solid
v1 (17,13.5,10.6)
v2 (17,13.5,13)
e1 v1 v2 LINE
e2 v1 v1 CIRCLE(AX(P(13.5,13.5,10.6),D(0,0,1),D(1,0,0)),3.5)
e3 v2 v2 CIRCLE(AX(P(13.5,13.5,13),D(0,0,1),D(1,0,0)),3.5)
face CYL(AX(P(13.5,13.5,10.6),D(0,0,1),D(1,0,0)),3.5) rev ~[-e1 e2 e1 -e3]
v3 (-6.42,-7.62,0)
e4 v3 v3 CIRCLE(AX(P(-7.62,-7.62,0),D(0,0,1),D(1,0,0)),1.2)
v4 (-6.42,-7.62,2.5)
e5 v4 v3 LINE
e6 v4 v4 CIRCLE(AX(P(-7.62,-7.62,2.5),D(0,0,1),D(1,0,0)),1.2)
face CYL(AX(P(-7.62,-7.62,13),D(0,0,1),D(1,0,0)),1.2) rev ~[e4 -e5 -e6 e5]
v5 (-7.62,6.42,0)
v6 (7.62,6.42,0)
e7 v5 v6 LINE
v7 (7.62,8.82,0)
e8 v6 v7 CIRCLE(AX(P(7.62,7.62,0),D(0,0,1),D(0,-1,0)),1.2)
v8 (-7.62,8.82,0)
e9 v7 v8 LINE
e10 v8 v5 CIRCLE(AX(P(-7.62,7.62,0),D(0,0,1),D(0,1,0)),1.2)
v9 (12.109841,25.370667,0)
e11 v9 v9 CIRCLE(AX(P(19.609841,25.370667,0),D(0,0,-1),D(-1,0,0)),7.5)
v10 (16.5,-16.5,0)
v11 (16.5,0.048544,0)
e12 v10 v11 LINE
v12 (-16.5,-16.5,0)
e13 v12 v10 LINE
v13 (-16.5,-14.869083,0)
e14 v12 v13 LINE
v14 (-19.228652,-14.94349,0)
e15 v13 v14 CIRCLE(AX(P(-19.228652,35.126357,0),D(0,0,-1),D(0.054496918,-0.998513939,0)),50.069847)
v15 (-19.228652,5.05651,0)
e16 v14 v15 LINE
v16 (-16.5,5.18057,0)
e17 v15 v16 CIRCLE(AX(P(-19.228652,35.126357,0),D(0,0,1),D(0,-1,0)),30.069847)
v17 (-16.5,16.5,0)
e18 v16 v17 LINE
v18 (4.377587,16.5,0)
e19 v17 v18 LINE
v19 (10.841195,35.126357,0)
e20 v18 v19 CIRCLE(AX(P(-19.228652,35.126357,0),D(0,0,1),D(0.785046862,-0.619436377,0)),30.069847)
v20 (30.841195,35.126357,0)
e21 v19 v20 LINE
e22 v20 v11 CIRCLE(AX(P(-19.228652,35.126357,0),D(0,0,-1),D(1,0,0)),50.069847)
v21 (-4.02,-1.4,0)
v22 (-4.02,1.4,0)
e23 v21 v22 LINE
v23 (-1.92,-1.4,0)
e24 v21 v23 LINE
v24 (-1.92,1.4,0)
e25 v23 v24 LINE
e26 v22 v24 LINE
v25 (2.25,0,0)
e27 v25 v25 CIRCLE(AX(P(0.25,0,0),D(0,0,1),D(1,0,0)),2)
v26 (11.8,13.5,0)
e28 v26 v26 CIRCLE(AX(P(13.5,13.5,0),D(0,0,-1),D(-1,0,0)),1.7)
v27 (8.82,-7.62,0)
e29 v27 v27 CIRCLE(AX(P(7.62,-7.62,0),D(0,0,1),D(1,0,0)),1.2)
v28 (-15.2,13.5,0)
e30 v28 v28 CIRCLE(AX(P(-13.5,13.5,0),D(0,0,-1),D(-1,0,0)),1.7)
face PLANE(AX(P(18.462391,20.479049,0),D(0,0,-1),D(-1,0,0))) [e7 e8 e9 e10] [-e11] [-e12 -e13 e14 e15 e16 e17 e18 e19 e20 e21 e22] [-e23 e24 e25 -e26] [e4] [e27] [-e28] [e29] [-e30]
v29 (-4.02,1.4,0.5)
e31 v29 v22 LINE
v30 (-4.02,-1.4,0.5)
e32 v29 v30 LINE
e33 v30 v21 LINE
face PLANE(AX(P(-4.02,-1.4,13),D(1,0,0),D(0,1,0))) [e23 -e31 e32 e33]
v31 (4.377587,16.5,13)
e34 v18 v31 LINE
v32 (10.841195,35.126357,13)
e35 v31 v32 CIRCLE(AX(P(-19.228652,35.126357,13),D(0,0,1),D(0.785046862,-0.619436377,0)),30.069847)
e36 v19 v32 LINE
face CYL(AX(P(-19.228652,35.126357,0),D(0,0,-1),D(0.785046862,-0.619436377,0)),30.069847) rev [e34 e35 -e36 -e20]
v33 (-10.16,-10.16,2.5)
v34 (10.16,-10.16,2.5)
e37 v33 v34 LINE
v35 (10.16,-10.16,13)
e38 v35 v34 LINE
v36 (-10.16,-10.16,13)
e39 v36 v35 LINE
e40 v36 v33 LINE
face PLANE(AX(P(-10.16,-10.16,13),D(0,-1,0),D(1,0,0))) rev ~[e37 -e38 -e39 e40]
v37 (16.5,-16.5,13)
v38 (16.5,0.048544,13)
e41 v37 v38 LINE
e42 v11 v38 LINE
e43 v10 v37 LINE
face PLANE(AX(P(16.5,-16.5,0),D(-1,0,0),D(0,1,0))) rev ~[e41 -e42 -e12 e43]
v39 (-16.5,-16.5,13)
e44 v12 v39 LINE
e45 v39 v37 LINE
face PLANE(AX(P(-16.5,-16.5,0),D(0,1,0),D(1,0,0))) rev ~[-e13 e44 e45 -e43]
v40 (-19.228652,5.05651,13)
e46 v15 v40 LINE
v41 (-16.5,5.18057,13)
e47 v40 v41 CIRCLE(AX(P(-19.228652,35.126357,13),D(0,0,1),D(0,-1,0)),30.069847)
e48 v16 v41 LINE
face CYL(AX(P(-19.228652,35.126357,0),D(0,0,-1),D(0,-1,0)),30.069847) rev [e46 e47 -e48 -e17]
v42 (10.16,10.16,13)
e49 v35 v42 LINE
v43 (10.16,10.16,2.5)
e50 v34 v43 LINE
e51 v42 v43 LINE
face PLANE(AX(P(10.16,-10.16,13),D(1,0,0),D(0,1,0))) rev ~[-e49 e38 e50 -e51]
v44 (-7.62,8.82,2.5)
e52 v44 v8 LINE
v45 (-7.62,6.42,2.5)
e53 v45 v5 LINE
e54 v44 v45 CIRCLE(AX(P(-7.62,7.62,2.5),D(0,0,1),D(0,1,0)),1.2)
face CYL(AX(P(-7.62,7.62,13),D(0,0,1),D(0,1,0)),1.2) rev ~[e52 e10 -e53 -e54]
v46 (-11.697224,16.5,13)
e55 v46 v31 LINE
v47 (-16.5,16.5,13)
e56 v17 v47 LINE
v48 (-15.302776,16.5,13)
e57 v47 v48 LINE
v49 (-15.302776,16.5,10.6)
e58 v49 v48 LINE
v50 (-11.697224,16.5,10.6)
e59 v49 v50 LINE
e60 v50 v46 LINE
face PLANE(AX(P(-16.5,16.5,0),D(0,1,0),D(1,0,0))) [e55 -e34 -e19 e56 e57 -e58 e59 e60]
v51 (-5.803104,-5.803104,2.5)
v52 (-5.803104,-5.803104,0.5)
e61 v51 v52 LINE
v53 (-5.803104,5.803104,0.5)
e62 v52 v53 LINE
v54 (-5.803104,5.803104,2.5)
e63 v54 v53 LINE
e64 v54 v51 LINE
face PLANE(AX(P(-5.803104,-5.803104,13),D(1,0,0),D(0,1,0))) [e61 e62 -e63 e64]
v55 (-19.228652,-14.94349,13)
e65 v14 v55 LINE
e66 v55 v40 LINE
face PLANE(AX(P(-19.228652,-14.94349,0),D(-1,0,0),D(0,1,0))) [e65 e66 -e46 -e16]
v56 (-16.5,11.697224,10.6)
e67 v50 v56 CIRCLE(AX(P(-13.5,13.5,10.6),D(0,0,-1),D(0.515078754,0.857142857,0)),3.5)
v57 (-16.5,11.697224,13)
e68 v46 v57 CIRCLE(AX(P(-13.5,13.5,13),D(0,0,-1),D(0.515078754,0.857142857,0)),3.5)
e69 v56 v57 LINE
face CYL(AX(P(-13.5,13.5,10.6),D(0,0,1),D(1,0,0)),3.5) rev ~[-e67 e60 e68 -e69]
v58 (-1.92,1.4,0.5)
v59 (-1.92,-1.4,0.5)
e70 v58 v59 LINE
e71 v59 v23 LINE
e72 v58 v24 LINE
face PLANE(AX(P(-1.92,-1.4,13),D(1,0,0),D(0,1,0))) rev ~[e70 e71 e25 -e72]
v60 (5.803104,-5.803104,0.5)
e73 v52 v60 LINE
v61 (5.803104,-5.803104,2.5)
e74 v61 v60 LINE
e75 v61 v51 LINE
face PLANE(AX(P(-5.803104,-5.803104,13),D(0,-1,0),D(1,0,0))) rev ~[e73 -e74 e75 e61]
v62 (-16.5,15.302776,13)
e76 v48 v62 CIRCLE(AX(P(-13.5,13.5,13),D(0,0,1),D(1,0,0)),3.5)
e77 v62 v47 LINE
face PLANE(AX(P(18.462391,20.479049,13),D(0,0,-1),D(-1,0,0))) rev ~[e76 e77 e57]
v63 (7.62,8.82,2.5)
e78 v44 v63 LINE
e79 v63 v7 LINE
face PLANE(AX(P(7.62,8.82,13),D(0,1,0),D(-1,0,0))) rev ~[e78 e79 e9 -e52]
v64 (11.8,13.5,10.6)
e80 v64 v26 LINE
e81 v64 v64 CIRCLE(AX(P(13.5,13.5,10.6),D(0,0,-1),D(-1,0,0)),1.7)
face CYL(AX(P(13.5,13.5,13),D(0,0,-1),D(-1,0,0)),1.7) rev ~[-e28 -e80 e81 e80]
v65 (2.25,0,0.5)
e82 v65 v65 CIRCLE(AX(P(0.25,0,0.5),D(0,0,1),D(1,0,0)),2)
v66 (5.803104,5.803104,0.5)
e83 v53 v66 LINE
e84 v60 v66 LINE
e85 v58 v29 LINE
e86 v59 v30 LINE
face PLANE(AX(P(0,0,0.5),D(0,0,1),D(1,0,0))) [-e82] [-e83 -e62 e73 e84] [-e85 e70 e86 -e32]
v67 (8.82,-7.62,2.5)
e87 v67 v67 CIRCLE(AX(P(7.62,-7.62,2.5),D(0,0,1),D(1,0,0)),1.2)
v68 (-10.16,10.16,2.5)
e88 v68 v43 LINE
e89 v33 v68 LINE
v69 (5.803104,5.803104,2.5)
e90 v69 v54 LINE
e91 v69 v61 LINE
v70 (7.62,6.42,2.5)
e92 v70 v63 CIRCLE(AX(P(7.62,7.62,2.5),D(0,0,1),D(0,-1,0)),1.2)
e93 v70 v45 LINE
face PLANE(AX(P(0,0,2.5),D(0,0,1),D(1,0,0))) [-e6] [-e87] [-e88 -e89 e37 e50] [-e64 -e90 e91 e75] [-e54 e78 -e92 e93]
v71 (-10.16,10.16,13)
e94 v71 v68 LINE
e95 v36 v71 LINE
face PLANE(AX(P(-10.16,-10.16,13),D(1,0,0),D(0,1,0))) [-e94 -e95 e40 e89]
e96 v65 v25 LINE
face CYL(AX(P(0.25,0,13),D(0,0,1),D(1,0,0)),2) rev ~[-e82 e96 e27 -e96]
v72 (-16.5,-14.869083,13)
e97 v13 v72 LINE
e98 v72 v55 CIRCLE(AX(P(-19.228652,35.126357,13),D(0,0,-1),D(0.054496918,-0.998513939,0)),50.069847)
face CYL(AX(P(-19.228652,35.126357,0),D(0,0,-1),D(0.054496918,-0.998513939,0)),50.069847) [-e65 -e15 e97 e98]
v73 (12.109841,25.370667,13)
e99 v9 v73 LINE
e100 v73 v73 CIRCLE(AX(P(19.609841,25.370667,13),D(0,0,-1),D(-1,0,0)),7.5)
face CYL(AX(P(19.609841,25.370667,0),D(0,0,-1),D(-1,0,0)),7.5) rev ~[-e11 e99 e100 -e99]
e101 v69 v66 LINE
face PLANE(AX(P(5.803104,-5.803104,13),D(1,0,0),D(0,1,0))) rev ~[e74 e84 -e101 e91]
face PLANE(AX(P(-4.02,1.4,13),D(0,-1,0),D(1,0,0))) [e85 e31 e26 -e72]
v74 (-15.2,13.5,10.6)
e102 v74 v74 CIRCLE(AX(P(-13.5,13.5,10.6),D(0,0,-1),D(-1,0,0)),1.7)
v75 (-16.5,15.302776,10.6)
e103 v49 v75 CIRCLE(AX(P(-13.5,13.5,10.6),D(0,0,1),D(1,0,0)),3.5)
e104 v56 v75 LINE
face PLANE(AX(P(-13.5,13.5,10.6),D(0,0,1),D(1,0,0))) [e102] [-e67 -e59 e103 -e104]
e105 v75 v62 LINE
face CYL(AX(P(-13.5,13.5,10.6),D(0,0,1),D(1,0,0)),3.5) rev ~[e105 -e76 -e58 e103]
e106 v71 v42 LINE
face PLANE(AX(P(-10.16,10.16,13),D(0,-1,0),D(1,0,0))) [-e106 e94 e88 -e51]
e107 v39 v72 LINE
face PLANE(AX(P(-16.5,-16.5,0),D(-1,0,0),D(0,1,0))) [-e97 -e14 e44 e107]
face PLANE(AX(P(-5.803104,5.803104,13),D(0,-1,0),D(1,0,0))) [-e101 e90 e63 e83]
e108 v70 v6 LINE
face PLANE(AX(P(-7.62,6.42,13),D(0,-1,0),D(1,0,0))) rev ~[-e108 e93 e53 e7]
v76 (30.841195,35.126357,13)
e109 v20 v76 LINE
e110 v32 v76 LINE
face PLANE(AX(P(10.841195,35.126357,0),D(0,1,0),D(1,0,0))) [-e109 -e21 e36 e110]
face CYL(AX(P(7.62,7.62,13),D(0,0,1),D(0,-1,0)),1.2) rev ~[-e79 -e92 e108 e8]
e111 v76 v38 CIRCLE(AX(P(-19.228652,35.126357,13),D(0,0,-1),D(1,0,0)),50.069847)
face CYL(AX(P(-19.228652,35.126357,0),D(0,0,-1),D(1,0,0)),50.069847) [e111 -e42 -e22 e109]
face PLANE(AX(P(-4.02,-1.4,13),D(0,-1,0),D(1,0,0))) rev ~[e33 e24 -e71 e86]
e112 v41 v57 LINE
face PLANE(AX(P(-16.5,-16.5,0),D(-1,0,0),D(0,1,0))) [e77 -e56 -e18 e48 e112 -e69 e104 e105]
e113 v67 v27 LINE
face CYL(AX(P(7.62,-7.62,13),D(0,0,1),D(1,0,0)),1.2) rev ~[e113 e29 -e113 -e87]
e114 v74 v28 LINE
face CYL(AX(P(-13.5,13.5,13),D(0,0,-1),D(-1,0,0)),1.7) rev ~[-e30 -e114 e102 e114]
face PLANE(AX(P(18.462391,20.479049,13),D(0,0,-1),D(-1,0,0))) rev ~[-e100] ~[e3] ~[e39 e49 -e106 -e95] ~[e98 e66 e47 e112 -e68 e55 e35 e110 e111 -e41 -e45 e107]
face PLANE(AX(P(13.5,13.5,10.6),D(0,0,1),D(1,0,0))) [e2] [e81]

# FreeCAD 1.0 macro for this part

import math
import FreeCAD as App
import Part
import Sketcher
from FreeCAD import Vector

doc = App.newDocument("Part")
body = doc.addObject("PartDesign::Body", "Body")

# Sketch on XY plane
sketch1 = doc.addObject("Sketcher::SketchObject", "Sketch")
body.addObject(sketch1)
sketch1.AttachmentSupport = (doc.XY_Plane, [""])
sketch1.MapMode = "FlatFace"
sketch1.addGeometry([
    Part.LineSegment(Vector(-16, 16, 0), Vector(-16, -16, 0)),
    Part.LineSegment(Vector(-16, -16, 0), Vector(16, -16, 0)),
    Part.LineSegment(Vector(16, -16, 0), Vector(16, 16, 0)),
    Part.LineSegment(Vector(16, 16, 0), Vector(-16, 16, 0)),
], False)
sketch1.addConstraint([
    Sketcher.Constraint("Coincident", 0, 2, 1, 1),
    Sketcher.Constraint("Coincident", 1, 2, 2, 1),
    Sketcher.Constraint("Coincident", 2, 2, 3, 1),
    Sketcher.Constraint("Coincident", 3, 2, 0, 1),
    Sketcher.Constraint("Vertical", 0),
    Sketcher.Constraint("Horizontal", 1),
    Sketcher.Constraint("Vertical", 2),
    Sketcher.Constraint("Horizontal", 3),
    Sketcher.Constraint("Symmetric", 0, 2, 2, 2, -1, 1),
    Sketcher.Constraint("Equal", 3, 0),
    Sketcher.Constraint("DistanceX", 1, 1, 1, 2, 33.0),
])
pad1 = doc.addObject("PartDesign::Pad", "Pad")
body.addObject(pad1)
pad1.Profile = sketch1
pad1.Length = 13

# Sketch on XY plane
sketch2 = doc.addObject("Sketcher::SketchObject", "Sketch001")
body.addObject(sketch2)
sketch2.AttachmentSupport = (doc.XY_Plane, [""])
sketch2.MapMode = "FlatFace"
sketch2.AttachmentOffset = App.Placement(Vector(0, 0, 13), App.Rotation())
sketch2.addGeometry([
    Part.Circle(Vector(0.2, 0, 0), Vector(0, 0, 1), 2),  # 0
    Part.LineSegment(Vector(-4, 1.4, 0), Vector(-4, -1.4, 0)),  # 1
    Part.LineSegment(Vector(-4, -1.4, 0), Vector(-1.9, -1.4, 0)),  # 2
    Part.LineSegment(Vector(-1.9, -1.4, 0), Vector(-1.9, 1.4, 0)),  # 3
    Part.LineSegment(Vector(-1.9, 1.4, 0), Vector(-4, 1.4, 0)),  # 4
], False)
sketch2.addConstraint([
    Sketcher.Constraint("Coincident", 1, 2, 2, 1),
    Sketcher.Constraint("Coincident", 2, 2, 3, 1),
    Sketcher.Constraint("Coincident", 3, 2, 4, 1),
    Sketcher.Constraint("Coincident", 4, 2, 1, 1),
    Sketcher.Constraint("Vertical", 1),
    Sketcher.Constraint("Horizontal", 2),
    Sketcher.Constraint("Vertical", 3),
    Sketcher.Constraint("Horizontal", 4),
    Sketcher.Constraint("PointOnObject", 0, 3, -1),
    Sketcher.Constraint("Diameter", 0, 4.0),
    Sketcher.Constraint("DistanceX", 2, 1, 2, 2, 2.1),
    Sketcher.Constraint("DistanceY", 1, 2, 1, 1, 2.8),
    Sketcher.Constraint("DistanceY", 1, 2, -1, 1, 1.4),
    Sketcher.Constraint("DistanceX", -1, 1, 0, 3, 0.25),
    Sketcher.Constraint("DistanceX", 1, 2, -1, 1, 4.02),
])
pocket1 = doc.addObject("PartDesign::Pocket", "Pocket")
body.addObject(pocket1)
pocket1.Profile = sketch2
pocket1.Type = "ThroughAll"

# Sketch on XY plane
sketch3 = doc.addObject("Sketcher::SketchObject", "Sketch002")
body.addObject(sketch3)
sketch3.AttachmentSupport = (doc.XY_Plane, [""])
sketch3.MapMode = "FlatFace"
sketch3.AttachmentOffset = App.Placement(Vector(0, 0, 13), App.Rotation())
sketch3.addGeometry([
    Part.LineSegment(Vector(-5.8, 5.8, 0), Vector(-5.8, -5.8, 0)),  # 0
    Part.LineSegment(Vector(-5.8, -5.8, 0), Vector(5.8, -5.8, 0)),  # 1
    Part.LineSegment(Vector(5.8, -5.8, 0), Vector(5.8, 5.8, 0)),  # 2
    Part.LineSegment(Vector(5.8, 5.8, 0), Vector(-5.8, 5.8, 0)),  # 3
    Part.Circle(Vector(0.2, 0, 0), Vector(0, 0, 1), 2),  # 4
], False)
sketch3.addConstraint([
    Sketcher.Constraint("Coincident", 0, 2, 1, 1),
    Sketcher.Constraint("Coincident", 1, 2, 2, 1),
    Sketcher.Constraint("Coincident", 2, 2, 3, 1),
    Sketcher.Constraint("Coincident", 3, 2, 0, 1),
    Sketcher.Constraint("Vertical", 0),
    Sketcher.Constraint("Horizontal", 1),
    Sketcher.Constraint("Vertical", 2),
    Sketcher.Constraint("Horizontal", 3),
    Sketcher.Constraint("Symmetric", 0, 2, 2, 2, -1, 1),
    Sketcher.Constraint("PointOnObject", 4, 3, -1),
    Sketcher.Constraint("Equal", 3, 0),
    Sketcher.Constraint("Diameter", 4, 4.0),
    Sketcher.Constraint("DistanceX", -1, 1, 4, 3, 0.25),
    Sketcher.Constraint("DistanceX", 1, 1, 1, 2, 11.606209),
])
pocket2 = doc.addObject("PartDesign::Pocket", "Pocket001")
body.addObject(pocket2)
pocket2.Profile = sketch3
pocket2.Length = 12.5

# Sketch on XY plane
sketch4 = doc.addObject("Sketcher::SketchObject", "Sketch003")
body.addObject(sketch4)
sketch4.AttachmentSupport = (doc.XY_Plane, [""])
sketch4.MapMode = "FlatFace"
sketch4.AttachmentOffset = App.Placement(Vector(0, 0, 13), App.Rotation())
sketch4.addGeometry([
    Part.LineSegment(Vector(7.6, 8.8, 0), Vector(-7.6, 8.8, 0)),  # 0
    Part.ArcOfCircle(Part.Circle(Vector(-7.6, 7.6, 0), Vector(0, 0, 1), 1.2), math.radians(90), math.radians(270)),  # 1
    Part.LineSegment(Vector(-7.6, 6.4, 0), Vector(7.6, 6.4, 0)),  # 2
    Part.ArcOfCircle(Part.Circle(Vector(7.6, 7.6, 0), Vector(0, 0, 1), 1.2), math.radians(-90), math.radians(90)),  # 3
    Part.Circle(Vector(7.6, -7.6, 0), Vector(0, 0, 1), 1.2),  # 4
    Part.Circle(Vector(-7.6, -7.6, 0), Vector(0, 0, 1), 1.2),  # 5
], False)
sketch4.addConstraint([
    Sketcher.Constraint("Tangent", 0, 2, 1, 1),
    Sketcher.Constraint("Tangent", 1, 2, 2, 1),
    Sketcher.Constraint("Tangent", 2, 2, 3, 1),
    Sketcher.Constraint("Tangent", 3, 2, 0, 1),
    Sketcher.Constraint("Horizontal", 0),
    Sketcher.Constraint("Horizontal", 2),
    Sketcher.Constraint("Equal", 3, 4),
    Sketcher.Constraint("Equal", 4, 5),
    Sketcher.Constraint("Symmetric", 1, 3, 4, 3, -1, 1),
    Sketcher.Constraint("Symmetric", 3, 3, 5, 3, -1, 1),
    Sketcher.Constraint("Vertical", 3, 3, 4, 3),
    Sketcher.Constraint("Diameter", 4, 2.4),
    Sketcher.Constraint("DistanceX", 0, 2, 0, 1, 15.24),
    Sketcher.Constraint("DistanceY", -1, 1, 1, 3, 7.62),
])
pocket3 = doc.addObject("PartDesign::Pocket", "Pocket002")
body.addObject(pocket3)
pocket3.Profile = sketch4
pocket3.Type = "ThroughAll"

# Sketch on XY plane
sketch5 = doc.addObject("Sketcher::SketchObject", "Sketch004")
body.addObject(sketch5)
sketch5.AttachmentSupport = (doc.XY_Plane, [""])
sketch5.MapMode = "FlatFace"
sketch5.AttachmentOffset = App.Placement(Vector(0, 0, 13), App.Rotation())
sketch5.addGeometry([
    Part.LineSegment(Vector(-10, 10, 0), Vector(-10, -10, 0)),
    Part.LineSegment(Vector(-10, -10, 0), Vector(10, -10, 0)),
    Part.LineSegment(Vector(10, -10, 0), Vector(10, 10, 0)),
    Part.LineSegment(Vector(10, 10, 0), Vector(-10, 10, 0)),
], False)
sketch5.addConstraint([
    Sketcher.Constraint("Coincident", 0, 2, 1, 1),
    Sketcher.Constraint("Coincident", 1, 2, 2, 1),
    Sketcher.Constraint("Coincident", 2, 2, 3, 1),
    Sketcher.Constraint("Coincident", 3, 2, 0, 1),
    Sketcher.Constraint("Vertical", 0),
    Sketcher.Constraint("Horizontal", 1),
    Sketcher.Constraint("Vertical", 2),
    Sketcher.Constraint("Horizontal", 3),
    Sketcher.Constraint("Symmetric", 0, 2, 2, 2, -1, 1),
    Sketcher.Constraint("Equal", 3, 0),
    Sketcher.Constraint("DistanceX", 1, 1, 1, 2, 20.32),
])
pocket4 = doc.addObject("PartDesign::Pocket", "Pocket003")
body.addObject(pocket4)
pocket4.Profile = sketch5
pocket4.Length = 10.5

# Sketch on XY plane
sketch6 = doc.addObject("Sketcher::SketchObject", "Sketch005")
body.addObject(sketch6)
sketch6.AttachmentSupport = (doc.XY_Plane, [""])
sketch6.MapMode = "FlatFace"
sketch6.addGeometry([
    Part.LineSegment(Vector(-19.2, -14.9, 0), Vector(-19.2, 5.1, 0)),  # 0
    Part.ArcOfCircle(Part.Circle(Vector(-19.2, 35.1, 0), Vector(0, 0, 1), 30.1), math.radians(-90), math.radians(-84.79)),  # 1
    Part.LineSegment(Vector(-16.5, 5.2, 0), Vector(-16.5, -14.9, 0)),  # 2
    Part.ArcOfCircle(Part.Circle(Vector(-19.2, 35.1, 0), Vector(0, 0, 1), 50.1), math.radians(-90), math.radians(-86.88)),  # 3
    Part.ArcOfCircle(Part.Circle(Vector(-19.2, 35.1, 0), Vector(0, 0, 1), 30.1), math.radians(-38), math.radians(0)),  # 4
    Part.LineSegment(Vector(10.8, 35.1, 0), Vector(30.8, 35.1, 0)),  # 5
    Part.ArcOfCircle(Part.Circle(Vector(-19.2, 35.1, 0), Vector(0, 0, 1), 50.1), math.radians(-44), math.radians(0)),  # 6
    Part.LineSegment(Vector(16.5, 0, 0), Vector(16.5, 16.5, 0)),  # 7
    Part.LineSegment(Vector(16.5, 16.5, 0), Vector(4.4, 16.5, 0)),  # 8
    Part.Circle(Vector(19.6, 25.4, 0), Vector(0, 0, 1), 7.5),  # 9
], False)
sketch6.addConstraint([
    Sketcher.Constraint("Coincident", 0, 2, 1, 1),
    Sketcher.Constraint("Coincident", 1, 2, 2, 1),
    Sketcher.Constraint("Coincident", 2, 2, 3, 2),
    Sketcher.Constraint("Coincident", 3, 1, 0, 1),
    Sketcher.Constraint("Coincident", 4, 2, 5, 1),
    Sketcher.Constraint("Coincident", 5, 2, 6, 2),
    Sketcher.Constraint("Coincident", 6, 1, 7, 1),
    Sketcher.Constraint("Coincident", 7, 2, 8, 1),
    Sketcher.Constraint("Coincident", 8, 2, 4, 1),
    Sketcher.Constraint("Vertical", 0),
    Sketcher.Constraint("Vertical", 2),
    Sketcher.Constraint("Horizontal", 5),
    Sketcher.Constraint("Vertical", 7),
    Sketcher.Constraint("Horizontal", 8),
    Sketcher.Constraint("Coincident", 3, 3, 1, 3),
    Sketcher.Constraint("Coincident", 4, 3, 1, 3),
    Sketcher.Constraint("Coincident", 6, 3, 1, 3),
    Sketcher.Constraint("Equal", 1, 4),
    Sketcher.Constraint("Equal", 3, 6),
    Sketcher.Constraint("Horizontal", 6, 3, 4, 2),
    Sketcher.Constraint("Vertical", 6, 3, 0, 2),
    Sketcher.Constraint("Diameter", 9, 15.0),
    Sketcher.Constraint("DistanceX", 5, 1, 5, 2, 20.0),
    Sketcher.Constraint("DistanceX", 1, 2, 6, 1, 33.0),
    Sketcher.Constraint("DistanceX", 1, 2, -1, 1, 16.5),
    Sketcher.Constraint("DistanceY", -1, 1, 7, 2, 16.5),
    Sketcher.Constraint("Radius", 1, 30.069847),
    Sketcher.Constraint("DistanceX", 8, 2, 8, 1, 12.122413),
    Sketcher.Constraint("DistanceY", 2, 2, 2, 1, 20.049653),
    Sketcher.Constraint("DistanceX", -1, 1, 9, 3, 19.609841),
    Sketcher.Constraint("DistanceY", 9, 3, 3, 3, 9.75569),
])
pad2 = doc.addObject("PartDesign::Pad", "Pad001")
body.addObject(pad2)
pad2.Profile = sketch6
pad2.Length = 13

# Sketch on XY plane
sketch7 = doc.addObject("Sketcher::SketchObject", "Sketch006")
body.addObject(sketch7)
sketch7.AttachmentSupport = (doc.XY_Plane, [""])
sketch7.MapMode = "FlatFace"
sketch7.AttachmentOffset = App.Placement(Vector(0, 0, 13), App.Rotation())
sketch7.addGeometry([
    Part.Circle(Vector(-13.5, 13.5, 0), Vector(0, 0, 1), 1.7),
    Part.Circle(Vector(13.5, 13.5, 0), Vector(0, 0, 1), 1.7),
], False)
sketch7.addConstraint([
    Sketcher.Constraint("Equal", 0, 1),
    Sketcher.Constraint("Symmetric", 0, 3, 1, 3, -2),
    Sketcher.Constraint("Diameter", 0, 3.4),
    Sketcher.Constraint("DistanceX", 0, 3, 1, 3, 27.0),
    Sketcher.Constraint("DistanceY", -1, 1, 0, 3, 13.5),
])
doc.recompute()
hole = doc.addObject("PartDesign::Hole", "Hole")
body.addObject(hole)
hole.Profile = sketch7
hole.ThreadType = "None"
hole.Diameter = 3.4
hole.DepthType = "ThroughAll"
hole.HoleCutType = "Counterbore"
hole.HoleCutDiameter = 7
hole.HoleCutDepth = 2.4

doc.recompute()
